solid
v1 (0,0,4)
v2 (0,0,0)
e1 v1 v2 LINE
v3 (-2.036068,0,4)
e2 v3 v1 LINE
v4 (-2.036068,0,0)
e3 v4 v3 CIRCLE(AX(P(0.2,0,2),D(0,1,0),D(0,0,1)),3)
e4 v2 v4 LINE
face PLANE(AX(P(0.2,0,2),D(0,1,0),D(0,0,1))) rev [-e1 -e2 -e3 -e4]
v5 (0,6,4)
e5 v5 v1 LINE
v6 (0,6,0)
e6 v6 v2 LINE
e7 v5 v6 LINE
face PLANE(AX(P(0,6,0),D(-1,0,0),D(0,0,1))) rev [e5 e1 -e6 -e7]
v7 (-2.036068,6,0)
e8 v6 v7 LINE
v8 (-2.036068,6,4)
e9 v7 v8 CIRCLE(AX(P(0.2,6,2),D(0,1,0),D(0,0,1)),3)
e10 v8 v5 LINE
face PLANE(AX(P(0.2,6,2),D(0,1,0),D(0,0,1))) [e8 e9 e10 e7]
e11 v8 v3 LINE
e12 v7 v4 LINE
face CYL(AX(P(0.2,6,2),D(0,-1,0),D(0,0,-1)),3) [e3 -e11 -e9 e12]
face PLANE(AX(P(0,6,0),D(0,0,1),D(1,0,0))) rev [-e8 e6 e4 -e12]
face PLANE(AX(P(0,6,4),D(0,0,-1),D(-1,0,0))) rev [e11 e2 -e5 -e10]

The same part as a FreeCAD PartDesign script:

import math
import FreeCAD as App
import Part
import Sketcher

V = App.Vector
Q = App.Units.Quantity

doc = App.newDocument("Part")
body = doc.addObject("PartDesign::Body", "Body")

sketch1 = body.newObject("Sketcher::SketchObject", "Sketch")
sketch1.AttachmentSupport = (doc.getObject("XZ_Plane"), [""])
sketch1.MapMode = "FlatFace"
sketch1.addGeometry([
    Part.LineSegment(V(0, 4, 0), V(0, 0, 0)),
    Part.LineSegment(V(0, 0, 0), V(-2.036068, 0, 0)),
    Part.ArcOfCircle(Part.Circle(V(0.2, 2, 0), V(0, 0, 1), 3), math.radians(138.189685), math.radians(221.810315)),
    Part.LineSegment(V(-2.036068, 4, 0), V(0, 4, 0)),
], False)
sketch1.addConstraint([
    Sketcher.Constraint("Coincident", 0, 2, 1, 1),
    Sketcher.Constraint("Coincident", 1, 2, 2, 2),
    Sketcher.Constraint("Coincident", 2, 1, 3, 1),
    Sketcher.Constraint("Coincident", 3, 2, 0, 1),
    Sketcher.Constraint("Vertical", 0),
    Sketcher.Constraint("Horizontal", 1),
    Sketcher.Constraint("Horizontal", 3),
    Sketcher.Constraint("Coincident", 0, 2, -1, 1),
    Sketcher.Constraint("Vertical", 1, 2, 2, 1),
    Sketcher.Constraint("Radius", 2, Q("3 mm")),
    Sketcher.Constraint("DistanceY", 0, 2, 0, 1, Q("4 mm")),
    Sketcher.Constraint("DistanceX", -1, 1, 2, 3, Q("0.2 mm")),
])
pad1 = body.newObject("PartDesign::Pad", "Pad")
pad1.Profile = sketch1
pad1.Length = 6
pad1.Reversed = True

doc.recompute()
